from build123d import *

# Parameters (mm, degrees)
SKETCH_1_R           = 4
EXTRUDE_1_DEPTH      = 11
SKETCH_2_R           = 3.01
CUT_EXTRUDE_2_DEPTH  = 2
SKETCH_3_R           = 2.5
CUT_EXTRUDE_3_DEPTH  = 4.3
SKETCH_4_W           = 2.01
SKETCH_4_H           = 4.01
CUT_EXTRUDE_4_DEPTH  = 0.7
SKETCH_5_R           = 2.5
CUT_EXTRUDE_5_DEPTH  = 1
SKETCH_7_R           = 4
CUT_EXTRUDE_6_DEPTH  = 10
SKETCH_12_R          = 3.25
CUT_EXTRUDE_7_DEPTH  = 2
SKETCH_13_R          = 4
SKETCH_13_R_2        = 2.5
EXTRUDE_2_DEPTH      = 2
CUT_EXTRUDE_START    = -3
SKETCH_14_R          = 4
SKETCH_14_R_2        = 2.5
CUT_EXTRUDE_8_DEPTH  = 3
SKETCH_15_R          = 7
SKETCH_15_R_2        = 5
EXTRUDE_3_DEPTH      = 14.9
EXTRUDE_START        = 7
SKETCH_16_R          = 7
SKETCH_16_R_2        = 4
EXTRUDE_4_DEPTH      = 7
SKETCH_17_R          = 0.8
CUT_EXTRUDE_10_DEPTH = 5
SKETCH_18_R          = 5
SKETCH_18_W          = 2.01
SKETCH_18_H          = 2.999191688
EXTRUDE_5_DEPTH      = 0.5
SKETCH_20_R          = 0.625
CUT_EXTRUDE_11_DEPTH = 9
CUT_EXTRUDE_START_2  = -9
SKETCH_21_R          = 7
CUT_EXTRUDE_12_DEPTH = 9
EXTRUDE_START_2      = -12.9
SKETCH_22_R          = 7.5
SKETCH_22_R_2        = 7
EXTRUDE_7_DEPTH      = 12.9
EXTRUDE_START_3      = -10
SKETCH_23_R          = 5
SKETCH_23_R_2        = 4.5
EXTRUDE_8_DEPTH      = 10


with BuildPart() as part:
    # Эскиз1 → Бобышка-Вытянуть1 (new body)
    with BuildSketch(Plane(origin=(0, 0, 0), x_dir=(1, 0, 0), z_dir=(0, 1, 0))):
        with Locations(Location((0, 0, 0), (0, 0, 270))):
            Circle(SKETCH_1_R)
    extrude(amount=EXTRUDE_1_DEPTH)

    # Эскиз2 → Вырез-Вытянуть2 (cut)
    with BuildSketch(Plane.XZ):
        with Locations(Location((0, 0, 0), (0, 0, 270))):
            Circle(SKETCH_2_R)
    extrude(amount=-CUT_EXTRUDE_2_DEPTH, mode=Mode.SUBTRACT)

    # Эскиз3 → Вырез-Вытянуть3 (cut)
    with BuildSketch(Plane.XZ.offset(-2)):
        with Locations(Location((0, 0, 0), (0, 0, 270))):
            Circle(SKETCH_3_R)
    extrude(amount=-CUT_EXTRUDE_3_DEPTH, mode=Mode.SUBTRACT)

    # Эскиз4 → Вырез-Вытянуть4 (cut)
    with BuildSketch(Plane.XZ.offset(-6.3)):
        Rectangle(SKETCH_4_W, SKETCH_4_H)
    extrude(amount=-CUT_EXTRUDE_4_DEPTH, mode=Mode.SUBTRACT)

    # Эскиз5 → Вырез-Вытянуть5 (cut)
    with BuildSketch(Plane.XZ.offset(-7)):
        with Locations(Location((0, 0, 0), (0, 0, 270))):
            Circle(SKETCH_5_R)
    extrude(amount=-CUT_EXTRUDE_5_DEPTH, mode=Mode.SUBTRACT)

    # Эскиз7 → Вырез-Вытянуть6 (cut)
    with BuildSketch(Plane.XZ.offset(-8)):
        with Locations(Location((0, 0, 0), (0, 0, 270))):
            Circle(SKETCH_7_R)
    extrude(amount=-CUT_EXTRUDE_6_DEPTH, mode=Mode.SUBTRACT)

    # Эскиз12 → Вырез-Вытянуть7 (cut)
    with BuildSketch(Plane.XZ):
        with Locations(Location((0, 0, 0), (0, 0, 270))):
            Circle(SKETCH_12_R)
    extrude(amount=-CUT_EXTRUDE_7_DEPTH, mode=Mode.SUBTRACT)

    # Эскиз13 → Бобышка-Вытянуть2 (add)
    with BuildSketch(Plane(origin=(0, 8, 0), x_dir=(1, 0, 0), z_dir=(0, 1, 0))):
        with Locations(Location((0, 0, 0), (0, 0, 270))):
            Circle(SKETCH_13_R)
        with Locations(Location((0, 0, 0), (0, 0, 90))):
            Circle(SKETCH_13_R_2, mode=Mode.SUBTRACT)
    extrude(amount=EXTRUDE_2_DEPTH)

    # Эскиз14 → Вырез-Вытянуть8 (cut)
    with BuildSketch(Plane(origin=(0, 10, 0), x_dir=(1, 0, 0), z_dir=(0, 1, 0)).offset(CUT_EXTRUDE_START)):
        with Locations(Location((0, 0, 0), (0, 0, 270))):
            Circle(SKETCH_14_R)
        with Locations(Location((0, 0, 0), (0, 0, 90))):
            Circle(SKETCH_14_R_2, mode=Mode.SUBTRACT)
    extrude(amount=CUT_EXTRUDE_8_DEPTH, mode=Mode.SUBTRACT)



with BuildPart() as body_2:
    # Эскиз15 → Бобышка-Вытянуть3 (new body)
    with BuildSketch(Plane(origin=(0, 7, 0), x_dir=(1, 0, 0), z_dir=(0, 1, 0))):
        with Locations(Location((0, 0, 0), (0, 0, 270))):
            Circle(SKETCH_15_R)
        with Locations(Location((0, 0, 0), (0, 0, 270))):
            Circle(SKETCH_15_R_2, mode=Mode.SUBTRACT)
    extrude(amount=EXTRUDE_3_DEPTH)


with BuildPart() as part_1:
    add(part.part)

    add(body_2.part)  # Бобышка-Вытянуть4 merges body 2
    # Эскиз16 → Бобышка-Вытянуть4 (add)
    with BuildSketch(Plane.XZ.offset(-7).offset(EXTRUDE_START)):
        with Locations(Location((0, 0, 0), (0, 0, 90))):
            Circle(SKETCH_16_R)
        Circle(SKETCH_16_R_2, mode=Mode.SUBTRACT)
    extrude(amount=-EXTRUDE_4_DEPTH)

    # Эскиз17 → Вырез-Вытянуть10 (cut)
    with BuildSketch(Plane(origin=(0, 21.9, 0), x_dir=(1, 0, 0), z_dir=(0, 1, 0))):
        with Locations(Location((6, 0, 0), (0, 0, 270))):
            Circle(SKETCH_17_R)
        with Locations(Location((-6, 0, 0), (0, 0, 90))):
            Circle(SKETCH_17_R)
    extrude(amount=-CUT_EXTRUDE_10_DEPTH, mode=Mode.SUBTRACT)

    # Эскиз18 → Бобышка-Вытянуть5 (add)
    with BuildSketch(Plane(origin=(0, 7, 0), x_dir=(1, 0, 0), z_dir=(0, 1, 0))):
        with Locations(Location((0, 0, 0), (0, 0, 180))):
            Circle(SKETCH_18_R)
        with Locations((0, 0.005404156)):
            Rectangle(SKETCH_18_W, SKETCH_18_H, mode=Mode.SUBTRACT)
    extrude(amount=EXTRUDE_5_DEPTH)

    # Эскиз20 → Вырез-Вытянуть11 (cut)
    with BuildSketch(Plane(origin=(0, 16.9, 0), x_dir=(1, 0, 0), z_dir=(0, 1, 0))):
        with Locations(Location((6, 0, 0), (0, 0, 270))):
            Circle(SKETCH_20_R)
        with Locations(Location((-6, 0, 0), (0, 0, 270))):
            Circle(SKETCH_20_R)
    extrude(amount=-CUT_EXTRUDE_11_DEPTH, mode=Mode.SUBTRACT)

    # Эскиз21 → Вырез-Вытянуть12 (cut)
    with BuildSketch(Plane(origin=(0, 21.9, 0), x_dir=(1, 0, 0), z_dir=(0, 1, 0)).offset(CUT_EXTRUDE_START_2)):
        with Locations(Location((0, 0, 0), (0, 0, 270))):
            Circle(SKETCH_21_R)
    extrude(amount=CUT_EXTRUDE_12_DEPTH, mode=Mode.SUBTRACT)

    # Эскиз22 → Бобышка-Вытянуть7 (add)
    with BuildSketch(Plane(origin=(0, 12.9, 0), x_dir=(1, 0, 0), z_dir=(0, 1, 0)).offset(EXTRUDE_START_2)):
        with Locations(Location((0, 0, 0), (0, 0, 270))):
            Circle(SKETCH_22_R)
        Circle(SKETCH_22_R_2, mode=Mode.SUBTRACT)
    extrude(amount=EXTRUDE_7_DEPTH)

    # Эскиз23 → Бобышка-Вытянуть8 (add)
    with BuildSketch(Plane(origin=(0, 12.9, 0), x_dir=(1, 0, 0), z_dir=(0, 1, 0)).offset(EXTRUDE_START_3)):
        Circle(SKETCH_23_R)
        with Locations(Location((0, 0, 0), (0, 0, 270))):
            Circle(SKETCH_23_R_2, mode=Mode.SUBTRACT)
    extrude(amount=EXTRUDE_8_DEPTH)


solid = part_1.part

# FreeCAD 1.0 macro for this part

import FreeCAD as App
import Part
import Sketcher

doc = App.newDocument("Part")
body = doc.addObject("PartDesign::Body", "Body")

# Sketch on XZ plane
sketch1 = body.newObject("Sketcher::SketchObject", "Sketch")
sketch1.AttachmentSupport = (doc.getObject("XZ_Plane"), [""])
sketch1.MapMode = "FlatFace"
sketch1.addGeometry(Part.Circle(App.Vector(0, 0, 0), App.Vector(0, 0, 1), 4), False)
sketch1.addConstraint(Sketcher.Constraint("Coincident", 0, 3, -1, 1))
sketch1.addConstraint(Sketcher.Constraint("Diameter", 0, 8.0))
pad1 = body.newObject("PartDesign::Pad", "Pad")
pad1.Profile = sketch1
pad1.Length = 11
pad1.Reversed = True

# Sketch on XZ plane
sketch2 = body.newObject("Sketcher::SketchObject", "Sketch001")
sketch2.AttachmentSupport = (doc.getObject("XZ_Plane"), [""])
sketch2.MapMode = "FlatFace"
sketch2.addGeometry(Part.Circle(App.Vector(0, 0, 0), App.Vector(0, 0, 1), 3), False)
sketch2.addConstraint(Sketcher.Constraint("Coincident", 0, 3, -1, 1))
sketch2.addConstraint(Sketcher.Constraint("Diameter", 0, 6.02))
pocket1 = body.newObject("PartDesign::Pocket", "Pocket")
pocket1.Profile = sketch2
pocket1.Length = 2

# Sketch on XZ plane
sketch3 = body.newObject("Sketcher::SketchObject", "Sketch002")
sketch3.AttachmentSupport = (doc.getObject("XZ_Plane"), [""])
sketch3.MapMode = "FlatFace"
sketch3.AttachmentOffset = App.Placement(App.Vector(0, 0, -2), App.Rotation())
sketch3.addGeometry(Part.Circle(App.Vector(0, 0, 0), App.Vector(0, 0, 1), 2.5), False)
sketch3.addConstraint(Sketcher.Constraint("Coincident", 0, 3, -1, 1))
sketch3.addConstraint(Sketcher.Constraint("Diameter", 0, 5.0))
pocket2 = body.newObject("PartDesign::Pocket", "Pocket001")
pocket2.Profile = sketch3
pocket2.Length = 4.3

# Sketch on XZ plane
sketch4 = body.newObject("Sketcher::SketchObject", "Sketch003")
sketch4.AttachmentSupport = (doc.getObject("XZ_Plane"), [""])
sketch4.MapMode = "FlatFace"
sketch4.AttachmentOffset = App.Placement(App.Vector(0, 0, -6.3), App.Rotation())
sketch4.addGeometry(Part.LineSegment(App.Vector(-1, 2, 0), App.Vector(-1, -2, 0)), False)
sketch4.addGeometry(Part.LineSegment(App.Vector(-1, -2, 0), App.Vector(1, -2, 0)), False)
sketch4.addGeometry(Part.LineSegment(App.Vector(1, -2, 0), App.Vector(1, 2, 0)), False)
sketch4.addGeometry(Part.LineSegment(App.Vector(1, 2, 0), App.Vector(-1, 2, 0)), False)
sketch4.addConstraint(Sketcher.Constraint("Coincident", 0, 2, 1, 1))
sketch4.addConstraint(Sketcher.Constraint("Coincident", 1, 2, 2, 1))
sketch4.addConstraint(Sketcher.Constraint("Coincident", 2, 2, 3, 1))
sketch4.addConstraint(Sketcher.Constraint("Coincident", 3, 2, 0, 1))
sketch4.addConstraint(Sketcher.Constraint("Vertical", 0))
sketch4.addConstraint(Sketcher.Constraint("Horizontal", 1))
sketch4.addConstraint(Sketcher.Constraint("Vertical", 2))
sketch4.addConstraint(Sketcher.Constraint("Horizontal", 3))
sketch4.addConstraint(Sketcher.Constraint("Symmetric", 0, 2, 2, 2, -1, 1))
sketch4.addConstraint(Sketcher.Constraint("DistanceX", 1, 1, 1, 2, 2.01))
sketch4.addConstraint(Sketcher.Constraint("DistanceY", 0, 2, 0, 1, 4.01))
pocket3 = body.newObject("PartDesign::Pocket", "Pocket002")
pocket3.Profile = sketch4
pocket3.Length = 0.7

# Sketch on XZ plane
sketch5 = body.newObject("Sketcher::SketchObject", "Sketch004")
sketch5.AttachmentSupport = (doc.getObject("XZ_Plane"), [""])
sketch5.MapMode = "FlatFace"
sketch5.AttachmentOffset = App.Placement(App.Vector(0, 0, -7), App.Rotation())
sketch5.addGeometry(Part.Circle(App.Vector(0, 0, 0), App.Vector(0, 0, 1), 2.5), False)
sketch5.addConstraint(Sketcher.Constraint("Coincident", 0, 3, -1, 1))
sketch5.addConstraint(Sketcher.Constraint("Diameter", 0, 5.0))
pocket4 = body.newObject("PartDesign::Pocket", "Pocket003")
pocket4.Profile = sketch5
pocket4.Length = 1

# Sketch on XZ plane
sketch6 = body.newObject("Sketcher::SketchObject", "Sketch005")
sketch6.AttachmentSupport = (doc.getObject("XZ_Plane"), [""])
sketch6.MapMode = "FlatFace"
sketch6.AttachmentOffset = App.Placement(App.Vector(0, 0, -8), App.Rotation())
sketch6.addGeometry(Part.Circle(App.Vector(0, 0, 0), App.Vector(0, 0, 1), 4), False)
sketch6.addConstraint(Sketcher.Constraint("Coincident", 0, 3, -1, 1))
sketch6.addConstraint(Sketcher.Constraint("Diameter", 0, 8.0))
pocket5 = body.newObject("PartDesign::Pocket", "Pocket004")
pocket5.Profile = sketch6
pocket5.Length = 10

# Sketch on XZ plane
sketch7 = body.newObject("Sketcher::SketchObject", "Sketch006")
sketch7.AttachmentSupport = (doc.getObject("XZ_Plane"), [""])
sketch7.MapMode = "FlatFace"
sketch7.addGeometry(Part.Circle(App.Vector(0, 0, 0), App.Vector(0, 0, 1), 3.2), False)
sketch7.addConstraint(Sketcher.Constraint("Coincident", 0, 3, -1, 1))
sketch7.addConstraint(Sketcher.Constraint("Diameter", 0, 6.5))
pocket6 = body.newObject("PartDesign::Pocket", "Pocket005")
pocket6.Profile = sketch7
pocket6.Length = 2

# Sketch on XZ plane
sketch8 = body.newObject("Sketcher::SketchObject", "Sketch007")
sketch8.AttachmentSupport = (doc.getObject("XZ_Plane"), [""])
sketch8.MapMode = "FlatFace"
sketch8.AttachmentOffset = App.Placement(App.Vector(0, 0, -8), App.Rotation())
sketch8.addGeometry(Part.Circle(App.Vector(0, 0, 0), App.Vector(0, 0, 1), 4), False)
sketch8.addGeometry(Part.Circle(App.Vector(0, 0, 0), App.Vector(0, 0, 1), 2.5), False)
sketch8.addConstraint(Sketcher.Constraint("Coincident", 0, 3, -1, 1))
sketch8.addConstraint(Sketcher.Constraint("Coincident", 1, 3, -1, 1))
sketch8.addConstraint(Sketcher.Constraint("Diameter", 0, 8.0))
sketch8.addConstraint(Sketcher.Constraint("Diameter", 1, 5.0))
pad2 = body.newObject("PartDesign::Pad", "Pad001")
pad2.Profile = sketch8
pad2.Length = 2
pad2.Reversed = True

# Sketch on XZ plane
sketch9 = body.newObject("Sketcher::SketchObject", "Sketch008")
sketch9.AttachmentSupport = (doc.getObject("XZ_Plane"), [""])
sketch9.MapMode = "FlatFace"
sketch9.AttachmentOffset = App.Placement(App.Vector(0, 0, -7), App.Rotation())
sketch9.addGeometry(Part.Circle(App.Vector(0, 0, 0), App.Vector(0, 0, 1), 4), False)
sketch9.addGeometry(Part.Circle(App.Vector(0, 0, 0), App.Vector(0, 0, 1), 2.5), False)
sketch9.addConstraint(Sketcher.Constraint("Coincident", 0, 3, -1, 1))
sketch9.addConstraint(Sketcher.Constraint("Coincident", 1, 3, -1, 1))
sketch9.addConstraint(Sketcher.Constraint("Diameter", 0, 8.0))
sketch9.addConstraint(Sketcher.Constraint("Diameter", 1, 5.0))
pocket7 = body.newObject("PartDesign::Pocket", "Pocket006")
pocket7.Profile = sketch9
pocket7.Length = 3
body2 = doc.addObject("PartDesign::Body", "Body001")

# Sketch on XZ plane
sketch10 = body2.newObject("Sketcher::SketchObject", "Sketch009")
sketch10.AttachmentSupport = (doc.getObject("XZ_Plane001"), [""])
sketch10.MapMode = "FlatFace"
sketch10.AttachmentOffset = App.Placement(App.Vector(0, 0, -7), App.Rotation())
sketch10.addGeometry(Part.Circle(App.Vector(0, 0, 0), App.Vector(0, 0, 1), 7), False)
sketch10.addGeometry(Part.Circle(App.Vector(0, 0, 0), App.Vector(0, 0, 1), 5), False)
sketch10.addConstraint(Sketcher.Constraint("Coincident", 0, 3, -1, 1))
sketch10.addConstraint(Sketcher.Constraint("Coincident", 1, 3, -1, 1))
sketch10.addConstraint(Sketcher.Constraint("Diameter", 0, 14.0))
sketch10.addConstraint(Sketcher.Constraint("Diameter", 1, 10.0))
pad3 = body2.newObject("PartDesign::Pad", "Pad002")
pad3.Profile = sketch10
pad3.Length = 14.9
pad3.Reversed = True
body.AllowCompound = True
doc.recompute()

boolean = body.newObject("PartDesign::Boolean", "Boolean")
boolean.Type = "Fuse"
boolean.addObjects([body2])

# Sketch on XZ plane
sketch11 = body.newObject("Sketcher::SketchObject", "Sketch010")
sketch11.AttachmentSupport = (doc.getObject("XZ_Plane"), [""])
sketch11.MapMode = "FlatFace"
sketch11.addGeometry(Part.Circle(App.Vector(0, 0, 0), App.Vector(0, 0, 1), 7), False)
sketch11.addGeometry(Part.Circle(App.Vector(0, 0, 0), App.Vector(0, 0, 1), 4), False)
sketch11.addConstraint(Sketcher.Constraint("Coincident", 0, 3, -1, 1))
sketch11.addConstraint(Sketcher.Constraint("Coincident", 1, 3, -1, 1))
sketch11.addConstraint(Sketcher.Constraint("Diameter", 0, 14.0))
sketch11.addConstraint(Sketcher.Constraint("Diameter", 1, 8.0))
pad4 = body.newObject("PartDesign::Pad", "Pad003")
pad4.Profile = sketch11
pad4.Length = 7
pad4.Reversed = True

# Sketch on XZ plane
sketch12 = body.newObject("Sketcher::SketchObject", "Sketch011")
sketch12.AttachmentSupport = (doc.getObject("XZ_Plane"), [""])
sketch12.MapMode = "FlatFace"
sketch12.AttachmentOffset = App.Placement(App.Vector(0, 0, -21.9), App.Rotation())
sketch12.addGeometry(Part.Circle(App.Vector(6, 0, 0), App.Vector(0, 0, 1), 0.8), False)
sketch12.addGeometry(Part.Circle(App.Vector(-6, 0, 0), App.Vector(0, 0, 1), 0.8), False)
sketch12.addConstraint(Sketcher.Constraint("Equal", 0, 1))
sketch12.addConstraint(Sketcher.Constraint("Symmetric", 0, 3, 1, 3, -1, 1))
sketch12.addConstraint(Sketcher.Constraint("PointOnObject", 0, 3, -1))
sketch12.addConstraint(Sketcher.Constraint("Diameter", 0, 1.6))
sketch12.addConstraint(Sketcher.Constraint("DistanceX", -1, 1, 0, 3, 6.0))
pocket8 = body.newObject("PartDesign::Pocket", "Pocket007")
pocket8.Profile = sketch12
pocket8.Length = 5
pocket8.Reversed = True

# Sketch on XZ plane
sketch13 = body.newObject("Sketcher::SketchObject", "Sketch012")
sketch13.AttachmentSupport = (doc.getObject("XZ_Plane"), [""])
sketch13.MapMode = "FlatFace"
sketch13.AttachmentOffset = App.Placement(App.Vector(0, 0, -7), App.Rotation())
sketch13.addGeometry(Part.Circle(App.Vector(0, 0, 0), App.Vector(0, 0, 1), 5), False)
sketch13.addGeometry(Part.LineSegment(App.Vector(1, 1.5, 0), App.Vector(-1, 1.5, 0)), False)
sketch13.addGeometry(Part.LineSegment(App.Vector(-1, 1.5, 0), App.Vector(-1, -1.5, 0)), False)
sketch13.addGeometry(Part.LineSegment(App.Vector(-1, -1.5, 0), App.Vector(1, -1.5, 0)), False)
sketch13.addGeometry(Part.LineSegment(App.Vector(1, -1.5, 0), App.Vector(1, 1.5, 0)), False)
sketch13.addConstraint(Sketcher.Constraint("Coincident", 1, 2, 2, 1))
sketch13.addConstraint(Sketcher.Constraint("Coincident", 2, 2, 3, 1))
sketch13.addConstraint(Sketcher.Constraint("Coincident", 3, 2, 4, 1))
sketch13.addConstraint(Sketcher.Constraint("Coincident", 4, 2, 1, 1))
sketch13.addConstraint(Sketcher.Constraint("Horizontal", 1))
sketch13.addConstraint(Sketcher.Constraint("Vertical", 2))
sketch13.addConstraint(Sketcher.Constraint("Horizontal", 3))
sketch13.addConstraint(Sketcher.Constraint("Vertical", 4))
sketch13.addConstraint(Sketcher.Constraint("Coincident", 0, 3, -1, 1))
sketch13.addConstraint(Sketcher.Constraint("Diameter", 0, 10.0))
sketch13.addConstraint(Sketcher.Constraint("DistanceX", 1, 2, 1, 1, 2.01))
sketch13.addConstraint(Sketcher.Constraint("DistanceX", 1, 2, -1, 1, 1.005))
sketch13.addConstraint(Sketcher.Constraint("DistanceY", 2, 2, -1, 1, 1.505))
sketch13.addConstraint(Sketcher.Constraint("DistanceY", 2, 2, 2, 1, 2.999192))
pad5 = body.newObject("PartDesign::Pad", "Pad004")
pad5.Profile = sketch13
pad5.Length = 0.5
pad5.Reversed = True

# Sketch on XZ plane
sketch14 = body.newObject("Sketcher::SketchObject", "Sketch013")
sketch14.AttachmentSupport = (doc.getObject("XZ_Plane"), [""])
sketch14.MapMode = "FlatFace"
sketch14.AttachmentOffset = App.Placement(App.Vector(0, 0, -16.9), App.Rotation())
sketch14.addGeometry(Part.Circle(App.Vector(6, 0, 0), App.Vector(0, 0, 1), 0.6), False)
sketch14.addGeometry(Part.Circle(App.Vector(-6, 0, 0), App.Vector(0, 0, 1), 0.6), False)
sketch14.addConstraint(Sketcher.Constraint("Equal", 0, 1))
sketch14.addConstraint(Sketcher.Constraint("Symmetric", 0, 3, 1, 3, -1, 1))
sketch14.addConstraint(Sketcher.Constraint("PointOnObject", 0, 3, -1))
sketch14.addConstraint(Sketcher.Constraint("Diameter", 0, 1.25))
sketch14.addConstraint(Sketcher.Constraint("DistanceX", -1, 1, 0, 3, 6.0))
pocket9 = body.newObject("PartDesign::Pocket", "Pocket008")
pocket9.Profile = sketch14
pocket9.Length = 9
pocket9.Reversed = True

# Sketch on XZ plane
sketch15 = body.newObject("Sketcher::SketchObject", "Sketch014")
sketch15.AttachmentSupport = (doc.getObject("XZ_Plane"), [""])
sketch15.MapMode = "FlatFace"
sketch15.AttachmentOffset = App.Placement(App.Vector(0, 0, -12.9), App.Rotation())
sketch15.addGeometry(Part.Circle(App.Vector(0, 0, 0), App.Vector(0, 0, 1), 7), False)
sketch15.addConstraint(Sketcher.Constraint("Coincident", 0, 3, -1, 1))
sketch15.addConstraint(Sketcher.Constraint("Diameter", 0, 14.0))
pocket10 = body.newObject("PartDesign::Pocket", "Pocket009")
pocket10.Profile = sketch15
pocket10.Length = 9

# Sketch on XZ plane
sketch16 = body.newObject("Sketcher::SketchObject", "Sketch015")
sketch16.AttachmentSupport = (doc.getObject("XZ_Plane"), [""])
sketch16.MapMode = "FlatFace"
sketch16.addGeometry(Part.Circle(App.Vector(0, 0, 0), App.Vector(0, 0, 1), 8), False)
sketch16.addGeometry(Part.Circle(App.Vector(0, 0, 0), App.Vector(0, 0, 1), 7), False)
sketch16.addConstraint(Sketcher.Constraint("Coincident", 0, 3, -1, 1))
sketch16.addConstraint(Sketcher.Constraint("Coincident", 1, 3, -1, 1))
sketch16.addConstraint(Sketcher.Constraint("Diameter", 0, 15.0))
sketch16.addConstraint(Sketcher.Constraint("Diameter", 1, 14.0))
pad6 = body.newObject("PartDesign::Pad", "Pad005")
pad6.Profile = sketch16
pad6.Length = 12.9
pad6.Reversed = True

# Sketch on XZ plane
sketch17 = body.newObject("Sketcher::SketchObject", "Sketch016")
sketch17.AttachmentSupport = (doc.getObject("XZ_Plane"), [""])
sketch17.MapMode = "FlatFace"
sketch17.AttachmentOffset = App.Placement(App.Vector(0, 0, -2.9), App.Rotation())
sketch17.addGeometry(Part.Circle(App.Vector(0, 0, 0), App.Vector(0, 0, 1), 5), False)
sketch17.addGeometry(Part.Circle(App.Vector(0, 0, 0), App.Vector(0, 0, 1), 4.5), False)
sketch17.addConstraint(Sketcher.Constraint("Coincident", 0, 3, -1, 1))
sketch17.addConstraint(Sketcher.Constraint("Coincident", 1, 3, -1, 1))
sketch17.addConstraint(Sketcher.Constraint("Diameter", 0, 10.0))
sketch17.addConstraint(Sketcher.Constraint("Diameter", 1, 9.0))
pad7 = body.newObject("PartDesign::Pad", "Pad006")
pad7.Profile = sketch17
pad7.Length = 10
pad7.Reversed = True

doc.recompute()
